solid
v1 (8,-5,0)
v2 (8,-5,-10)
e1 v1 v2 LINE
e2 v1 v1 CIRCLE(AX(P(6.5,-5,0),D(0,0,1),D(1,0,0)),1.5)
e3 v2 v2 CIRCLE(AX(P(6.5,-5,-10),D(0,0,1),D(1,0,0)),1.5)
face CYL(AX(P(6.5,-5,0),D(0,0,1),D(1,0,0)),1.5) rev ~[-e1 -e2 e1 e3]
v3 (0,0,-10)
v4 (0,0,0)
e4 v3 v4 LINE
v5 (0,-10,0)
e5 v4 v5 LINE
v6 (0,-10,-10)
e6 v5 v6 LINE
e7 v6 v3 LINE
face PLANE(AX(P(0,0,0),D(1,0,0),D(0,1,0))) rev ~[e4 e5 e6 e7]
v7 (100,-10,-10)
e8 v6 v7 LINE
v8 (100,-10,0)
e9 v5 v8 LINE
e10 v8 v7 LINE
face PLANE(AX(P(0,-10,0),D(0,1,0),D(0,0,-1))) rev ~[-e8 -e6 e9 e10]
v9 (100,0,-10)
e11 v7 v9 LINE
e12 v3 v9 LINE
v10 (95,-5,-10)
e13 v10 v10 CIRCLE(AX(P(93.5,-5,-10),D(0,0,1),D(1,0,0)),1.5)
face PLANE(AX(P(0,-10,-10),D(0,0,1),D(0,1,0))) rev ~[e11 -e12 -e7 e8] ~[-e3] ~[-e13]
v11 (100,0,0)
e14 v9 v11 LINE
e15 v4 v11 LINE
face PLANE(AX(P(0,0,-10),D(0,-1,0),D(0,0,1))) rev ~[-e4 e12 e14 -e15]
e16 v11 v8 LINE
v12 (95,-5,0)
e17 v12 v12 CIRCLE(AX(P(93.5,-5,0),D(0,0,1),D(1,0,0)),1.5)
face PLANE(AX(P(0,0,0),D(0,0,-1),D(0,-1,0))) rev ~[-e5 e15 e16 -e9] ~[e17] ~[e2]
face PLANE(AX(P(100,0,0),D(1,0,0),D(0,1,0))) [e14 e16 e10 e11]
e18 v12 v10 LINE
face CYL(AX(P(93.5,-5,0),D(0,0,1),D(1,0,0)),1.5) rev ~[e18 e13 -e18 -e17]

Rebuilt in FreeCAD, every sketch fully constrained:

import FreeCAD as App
import Part
import Sketcher
from FreeCAD import Vector
Q = App.Units.Quantity

doc = App.newDocument("Part")
body = doc.addObject("PartDesign::Body", "Body")

# Sketch on YZ plane
sketch1 = body.newObject("Sketcher::SketchObject", "Sketch")
sketch1.AttachmentSupport = (doc.getObject("YZ_Plane"), [""])
sketch1.MapMode = "FlatFace"
sketch1.addGeometry(Part.LineSegment(Vector(0, -10, 0), Vector(0, 0, 0)), False)
sketch1.addGeometry(Part.LineSegment(Vector(0, 0, 0), Vector(-10, 0, 0)), False)
sketch1.addGeometry(Part.LineSegment(Vector(-10, 0, 0), Vector(-10, -10, 0)), False)
sketch1.addGeometry(Part.LineSegment(Vector(-10, -10, 0), Vector(0, -10, 0)), False)
sketch1.addConstraint(Sketcher.Constraint("Coincident", 0, 2, 1, 1))
sketch1.addConstraint(Sketcher.Constraint("Coincident", 1, 2, 2, 1))
sketch1.addConstraint(Sketcher.Constraint("Coincident", 2, 2, 3, 1))
sketch1.addConstraint(Sketcher.Constraint("Coincident", 3, 2, 0, 1))
sketch1.addConstraint(Sketcher.Constraint("Vertical", 0))
sketch1.addConstraint(Sketcher.Constraint("Horizontal", 1))
sketch1.addConstraint(Sketcher.Constraint("Vertical", 2))
sketch1.addConstraint(Sketcher.Constraint("Horizontal", 3))
sketch1.addConstraint(Sketcher.Constraint("Coincident", 0, 2, -1, 1))
sketch1.addConstraint(Sketcher.Constraint("Equal", 3, 0))
sketch1.addConstraint(Sketcher.Constraint("DistanceX", 1, 2, 1, 1, Q("0.3937 in")))
pad1 = body.newObject("PartDesign::Pad", "Pad")
pad1.Profile = sketch1
pad1.Length = Q("3.9370079 in")

# Sketch on XY plane
sketch2 = body.newObject("Sketcher::SketchObject", "Sketch001")
sketch2.AttachmentSupport = (doc.getObject("XY_Plane"), [""])
sketch2.MapMode = "FlatFace"
sketch2.addGeometry(Part.Circle(Vector(6.5, -5, 0), Vector(0, 0, 1), 1.5), False)
sketch2.addGeometry(Part.Circle(Vector(93.5, -5, 0), Vector(0, 0, 1), 1.5), False)
sketch2.addConstraint(Sketcher.Constraint("Equal", 0, 1))
sketch2.addConstraint(Sketcher.Constraint("Horizontal", 0, 3, 1, 3))
sketch2.addConstraint(Sketcher.Constraint("Diameter", 0, Q("0.1181 in")))
sketch2.addConstraint(Sketcher.Constraint("DistanceY", 0, 3, -1, 1, Q("5 mm")))
sketch2.addConstraint(Sketcher.Constraint("DistanceX", -1, 1, 0, 3, Q("0.2559 in")))
sketch2.addConstraint(Sketcher.Constraint("DistanceX", -1, 1, 1, 3, Q("3.6811 in")))
pocket1 = body.newObject("PartDesign::Pocket", "Pocket")
pocket1.Profile = sketch2
pocket1.Length = Q("3.9370079 in")

doc.recompute()
